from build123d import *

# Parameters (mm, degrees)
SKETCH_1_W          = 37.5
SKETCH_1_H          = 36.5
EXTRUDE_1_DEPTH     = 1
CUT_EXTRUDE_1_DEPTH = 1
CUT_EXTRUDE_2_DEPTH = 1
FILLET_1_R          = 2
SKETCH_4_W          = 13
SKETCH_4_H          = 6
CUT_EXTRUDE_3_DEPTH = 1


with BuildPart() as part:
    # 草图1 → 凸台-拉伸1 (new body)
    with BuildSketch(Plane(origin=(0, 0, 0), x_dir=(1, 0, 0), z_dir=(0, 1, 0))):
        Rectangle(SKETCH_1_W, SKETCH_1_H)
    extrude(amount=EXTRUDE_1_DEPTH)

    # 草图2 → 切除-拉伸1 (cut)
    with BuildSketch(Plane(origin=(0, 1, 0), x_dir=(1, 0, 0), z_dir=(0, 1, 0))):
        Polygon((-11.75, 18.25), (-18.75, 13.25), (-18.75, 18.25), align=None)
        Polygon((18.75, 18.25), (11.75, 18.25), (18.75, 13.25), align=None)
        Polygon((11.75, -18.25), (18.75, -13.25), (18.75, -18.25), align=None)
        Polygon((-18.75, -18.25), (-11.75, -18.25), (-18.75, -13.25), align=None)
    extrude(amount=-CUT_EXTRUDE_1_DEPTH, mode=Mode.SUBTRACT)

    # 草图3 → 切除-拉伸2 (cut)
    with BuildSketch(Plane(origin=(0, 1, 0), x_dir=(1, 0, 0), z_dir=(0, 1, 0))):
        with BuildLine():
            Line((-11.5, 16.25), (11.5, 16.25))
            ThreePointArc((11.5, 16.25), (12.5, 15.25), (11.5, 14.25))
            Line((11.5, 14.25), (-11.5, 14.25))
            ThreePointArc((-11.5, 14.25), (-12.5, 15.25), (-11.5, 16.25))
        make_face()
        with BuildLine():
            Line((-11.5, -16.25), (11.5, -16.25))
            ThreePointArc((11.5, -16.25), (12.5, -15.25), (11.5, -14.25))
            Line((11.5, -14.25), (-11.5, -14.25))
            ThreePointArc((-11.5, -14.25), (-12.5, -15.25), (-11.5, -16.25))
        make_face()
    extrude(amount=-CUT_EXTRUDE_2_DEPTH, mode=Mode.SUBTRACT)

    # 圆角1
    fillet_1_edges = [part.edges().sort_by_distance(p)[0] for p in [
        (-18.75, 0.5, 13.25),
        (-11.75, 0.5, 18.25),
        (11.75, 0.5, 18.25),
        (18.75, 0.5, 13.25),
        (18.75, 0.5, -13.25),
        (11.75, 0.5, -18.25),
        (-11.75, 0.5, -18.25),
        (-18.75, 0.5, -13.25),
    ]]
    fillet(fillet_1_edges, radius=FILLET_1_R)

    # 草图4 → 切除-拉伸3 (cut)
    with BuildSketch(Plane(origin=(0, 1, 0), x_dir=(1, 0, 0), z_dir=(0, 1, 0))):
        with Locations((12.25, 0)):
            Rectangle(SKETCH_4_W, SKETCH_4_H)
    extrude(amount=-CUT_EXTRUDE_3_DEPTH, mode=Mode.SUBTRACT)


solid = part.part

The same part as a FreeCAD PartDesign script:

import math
import FreeCAD as App
import Part
import Sketcher
from FreeCAD import Vector
Q = App.Units.Quantity


def edges_at(feature, points):
    """Names of the edges that pass closest to the given points."""
    edges = feature.Shape.Edges
    near = lambda p: min(range(len(edges)), key=lambda i: edges[i].distToShape(Part.Vertex(*p))[0])
    return sorted({f"Edge{near(p) + 1}" for p in points})


def add_polygon(sketch, points):
    """Adds a closed chain of lines whose ends are joined by coincident constraints."""
    first, n = sketch.GeometryCount, len(points)
    for a, b in zip(points, points[1:] + points[:1]):
        sketch.addGeometry(Part.LineSegment(App.Vector(*a, 0), App.Vector(*b, 0)), False)
    for i in range(n):
        sketch.addConstraint(Sketcher.Constraint("Coincident", first + i, 2, first + (i + 1) % n, 1))

doc = App.newDocument("Part")
params = doc.addObject("Spreadsheet::Sheet", "Params")
for row, (alias, value) in enumerate([
    ("sketch1_width", "37.5 mm"),
    ("sketch1_height", "36.5 mm"),
    ("pad1_length", "1 mm"),
    ("sketch2_width", "7 mm"),
    ("sketch2_height", "5 mm"),
    ("pocket1_length", "1 mm"),
    ("sketch3_radius", "1 mm"),
    ("sketch3_width", "23 mm"),
    ("pocket2_length", "1 mm"),
    ("fillet_radius", "2 mm"),
    ("sketch4_width", "13 mm"),
    ("sketch4_height", "6 mm"),
    ("pocket3_length", "1 mm"),
], start=1):
    params.set(f"A{row}", alias)
    params.set(f"B{row}", "=" + value)
    params.setAlias(f"B{row}", alias)

body = doc.addObject("PartDesign::Body", "Body")

# Sketch on XZ plane
sketch1 = body.newObject("Sketcher::SketchObject", "Sketch")
sketch1.AttachmentSupport = (doc.getObject("XZ_Plane"), [""])
sketch1.MapMode = "FlatFace"
add_polygon(sketch1, [(-18.75, -18.25), (-18.75, 18.25), (18.75, 18.25), (18.75, -18.25)])  # lines 0-3
sketch1.addConstraint([
    Sketcher.Constraint("Vertical", 0),
    Sketcher.Constraint("Horizontal", 1),
    Sketcher.Constraint("Vertical", 2),
    Sketcher.Constraint("Horizontal", 3),
    Sketcher.Constraint("Symmetric", 0, 2, 2, 2, -1, 1),
    Sketcher.Constraint("DistanceX", 1, 1, 1, 2, Q("37.5 mm")),
    Sketcher.Constraint("DistanceY", 0, 1, 0, 2, Q("36.5 mm")),
])
sketch1.setExpression("Constraints[9]", "Params.sketch1_width")
sketch1.setExpression("Constraints[10]", "Params.sketch1_height")
pad1 = body.newObject("PartDesign::Pad", "Pad")
pad1.Profile = sketch1
pad1.setExpression("Length", "Params.pad1_length")
pad1.Reversed = True

# Sketch on XZ plane
sketch2 = body.newObject("Sketcher::SketchObject", "Sketch001")
sketch2.AttachmentSupport = (doc.getObject("XZ_Plane"), [""])
sketch2.MapMode = "FlatFace"
sketch2.AttachmentOffset = App.Placement(Vector(0, 0, -1), App.Rotation())
add_polygon(sketch2, [(-18.75, -13.25), (-11.75, -18.25), (-18.75, -18.25)])  # lines 0-2
add_polygon(sketch2, [(18.75, -18.25), (11.75, -18.25), (18.75, -13.25)])  # lines 3-5
add_polygon(sketch2, [(18.75, 13.25), (11.75, 18.25), (18.75, 18.25)])  # lines 6-8
add_polygon(sketch2, [(-18.75, 18.25), (-11.75, 18.25), (-18.75, 13.25)])  # lines 9-11
sketch2.addConstraint([
    Sketcher.Constraint("Horizontal", 1),
    Sketcher.Constraint("Vertical", 2),
    Sketcher.Constraint("Horizontal", 3),
    Sketcher.Constraint("Vertical", 5),
    Sketcher.Constraint("Horizontal", 7),
    Sketcher.Constraint("Vertical", 8),
    Sketcher.Constraint("Horizontal", 9),
    Sketcher.Constraint("Vertical", 11),
    Sketcher.Constraint("Symmetric", 0, 2, 6, 2, -1, 1),
    Sketcher.Constraint("Symmetric", 2, 2, 8, 2, -1, 1),
    Sketcher.Constraint("Symmetric", 3, 2, 9, 2, -1, 1),
    Sketcher.Constraint("Symmetric", 4, 2, 10, 2, -1, 1),
    Sketcher.Constraint("Symmetric", 0, 2, 3, 2, -2),
    Sketcher.Constraint("Symmetric", 2, 2, 4, 2, -2),
    Sketcher.Constraint("DistanceX", 1, 2, 1, 1, Q("7 mm")),
    Sketcher.Constraint("DistanceY", 2, 1, 2, 2, Q("5 mm")),
    Sketcher.Constraint("DistanceX", 0, 2, 3, 2, Q("23.5 mm")),
    Sketcher.Constraint("DistanceY", 4, 2, 6, 2, Q("31.5 mm")),
])
sketch2.setExpression("Constraints[26]", "Params.sketch2_width")
sketch2.setExpression("Constraints[27]", "Params.sketch2_height")
pocket1 = body.newObject("PartDesign::Pocket", "Pocket")
pocket1.Profile = sketch2
pocket1.setExpression("Length", "Params.pocket1_length")
pocket1.Reversed = True

# Sketch on XZ plane
sketch3 = body.newObject("Sketcher::SketchObject", "Sketch002")
sketch3.AttachmentSupport = (doc.getObject("XZ_Plane"), [""])
sketch3.MapMode = "FlatFace"
sketch3.AttachmentOffset = App.Placement(Vector(0, 0, -1), App.Rotation())
sketch3.addGeometry([
    Part.LineSegment(Vector(11.5, -16.25, 0), Vector(-11.5, -16.25, 0)),  # 0
    Part.ArcOfCircle(Part.Circle(Vector(-11.5, -15.25, 0), Vector(0, 0, 1), 1), math.radians(90), math.radians(270)),  # 1
    Part.LineSegment(Vector(-11.5, -14.25, 0), Vector(11.5, -14.25, 0)),  # 2
    Part.ArcOfCircle(Part.Circle(Vector(11.5, -15.25, 0), Vector(0, 0, 1), 1), math.radians(-90), math.radians(90)),  # 3
    Part.LineSegment(Vector(-11.5, 16.25, 0), Vector(11.5, 16.25, 0)),  # 4
    Part.ArcOfCircle(Part.Circle(Vector(11.5, 15.25, 0), Vector(0, 0, 1), 1), math.radians(-90), math.radians(90)),  # 5
    Part.LineSegment(Vector(11.5, 14.25, 0), Vector(-11.5, 14.25, 0)),  # 6
    Part.ArcOfCircle(Part.Circle(Vector(-11.5, 15.25, 0), Vector(0, 0, 1), 1), math.radians(90), math.radians(270)),  # 7
], False)
sketch3.addConstraint([
    Sketcher.Constraint("Tangent", 0, 2, 1, 2),
    Sketcher.Constraint("Tangent", 1, 1, 2, 1),
    Sketcher.Constraint("Tangent", 2, 2, 3, 2),
    Sketcher.Constraint("Tangent", 3, 1, 0, 1),
    Sketcher.Constraint("Tangent", 4, 2, 5, 2),
    Sketcher.Constraint("Tangent", 5, 1, 6, 1),
    Sketcher.Constraint("Tangent", 6, 2, 7, 2),
    Sketcher.Constraint("Tangent", 7, 1, 4, 1),
    Sketcher.Constraint("Horizontal", 0),
    Sketcher.Constraint("Horizontal", 2),
    Sketcher.Constraint("Horizontal", 4),
    Sketcher.Constraint("Horizontal", 6),
    Sketcher.Constraint("Equal", 3, 5),
    Sketcher.Constraint("Symmetric", 1, 3, 5, 3, -1, 1),
    Sketcher.Constraint("Vertical", 3, 3, 5, 3),
    Sketcher.Constraint("Vertical", 1, 3, 7, 3),
    Sketcher.Constraint("Radius", 1, Q("1 mm")),
    Sketcher.Constraint("DistanceX", 0, 2, 0, 1, Q("23 mm")),
    Sketcher.Constraint("DistanceY", 3, 3, 5, 3, Q("30.5 mm")),
])
sketch3.setExpression("Constraints[16]", "Params.sketch3_radius")
sketch3.setExpression("Constraints[17]", "Params.sketch3_width")
pocket2 = body.newObject("PartDesign::Pocket", "Pocket001")
pocket2.Profile = sketch3
pocket2.setExpression("Length", "Params.pocket2_length")
pocket2.Reversed = True
doc.recompute()

fillet = body.newObject("PartDesign::Fillet", "Fillet")
fillet.Base = (pocket2, edges_at(pocket2, [
    (-18.75, 0.5, 13.25),
    (-11.75, 0.5, 18.25),
    (11.75, 0.5, 18.25),
    (18.75, 0.5, 13.25),
    (18.75, 0.5, -13.25),
    (11.75, 0.5, -18.25),
    (-11.75, 0.5, -18.25),
    (-18.75, 0.5, -13.25),
]))
fillet.setExpression("Radius", "Params.fillet_radius")

# Sketch on XZ plane
sketch4 = body.newObject("Sketcher::SketchObject", "Sketch003")
sketch4.AttachmentSupport = (doc.getObject("XZ_Plane"), [""])
sketch4.MapMode = "FlatFace"
sketch4.AttachmentOffset = App.Placement(Vector(0, 0, -1), App.Rotation())
add_polygon(sketch4, [(5.75, -3), (5.75, 3), (18.75, 3), (18.75, -3)])  # lines 0-3
sketch4.addConstraint([
    Sketcher.Constraint("Vertical", 0),
    Sketcher.Constraint("Horizontal", 1),
    Sketcher.Constraint("Vertical", 2),
    Sketcher.Constraint("Horizontal", 3),
    Sketcher.Constraint("DistanceX", 1, 1, 1, 2, Q("13 mm")),
    Sketcher.Constraint("DistanceY", 0, 1, 0, 2, Q("6 mm")),
    Sketcher.Constraint("DistanceY", -1, 1, 0, 2, Q("3 mm")),
    Sketcher.Constraint("DistanceX", -1, 1, 0, 2, Q("5.75 mm")),
])
sketch4.setExpression("Constraints[8]", "Params.sketch4_width")
sketch4.setExpression("Constraints[9]", "Params.sketch4_height")
pocket3 = body.newObject("PartDesign::Pocket", "Pocket002")
pocket3.Profile = sketch4
pocket3.setExpression("Length", "Params.pocket3_length")
pocket3.Reversed = True

doc.recompute()
